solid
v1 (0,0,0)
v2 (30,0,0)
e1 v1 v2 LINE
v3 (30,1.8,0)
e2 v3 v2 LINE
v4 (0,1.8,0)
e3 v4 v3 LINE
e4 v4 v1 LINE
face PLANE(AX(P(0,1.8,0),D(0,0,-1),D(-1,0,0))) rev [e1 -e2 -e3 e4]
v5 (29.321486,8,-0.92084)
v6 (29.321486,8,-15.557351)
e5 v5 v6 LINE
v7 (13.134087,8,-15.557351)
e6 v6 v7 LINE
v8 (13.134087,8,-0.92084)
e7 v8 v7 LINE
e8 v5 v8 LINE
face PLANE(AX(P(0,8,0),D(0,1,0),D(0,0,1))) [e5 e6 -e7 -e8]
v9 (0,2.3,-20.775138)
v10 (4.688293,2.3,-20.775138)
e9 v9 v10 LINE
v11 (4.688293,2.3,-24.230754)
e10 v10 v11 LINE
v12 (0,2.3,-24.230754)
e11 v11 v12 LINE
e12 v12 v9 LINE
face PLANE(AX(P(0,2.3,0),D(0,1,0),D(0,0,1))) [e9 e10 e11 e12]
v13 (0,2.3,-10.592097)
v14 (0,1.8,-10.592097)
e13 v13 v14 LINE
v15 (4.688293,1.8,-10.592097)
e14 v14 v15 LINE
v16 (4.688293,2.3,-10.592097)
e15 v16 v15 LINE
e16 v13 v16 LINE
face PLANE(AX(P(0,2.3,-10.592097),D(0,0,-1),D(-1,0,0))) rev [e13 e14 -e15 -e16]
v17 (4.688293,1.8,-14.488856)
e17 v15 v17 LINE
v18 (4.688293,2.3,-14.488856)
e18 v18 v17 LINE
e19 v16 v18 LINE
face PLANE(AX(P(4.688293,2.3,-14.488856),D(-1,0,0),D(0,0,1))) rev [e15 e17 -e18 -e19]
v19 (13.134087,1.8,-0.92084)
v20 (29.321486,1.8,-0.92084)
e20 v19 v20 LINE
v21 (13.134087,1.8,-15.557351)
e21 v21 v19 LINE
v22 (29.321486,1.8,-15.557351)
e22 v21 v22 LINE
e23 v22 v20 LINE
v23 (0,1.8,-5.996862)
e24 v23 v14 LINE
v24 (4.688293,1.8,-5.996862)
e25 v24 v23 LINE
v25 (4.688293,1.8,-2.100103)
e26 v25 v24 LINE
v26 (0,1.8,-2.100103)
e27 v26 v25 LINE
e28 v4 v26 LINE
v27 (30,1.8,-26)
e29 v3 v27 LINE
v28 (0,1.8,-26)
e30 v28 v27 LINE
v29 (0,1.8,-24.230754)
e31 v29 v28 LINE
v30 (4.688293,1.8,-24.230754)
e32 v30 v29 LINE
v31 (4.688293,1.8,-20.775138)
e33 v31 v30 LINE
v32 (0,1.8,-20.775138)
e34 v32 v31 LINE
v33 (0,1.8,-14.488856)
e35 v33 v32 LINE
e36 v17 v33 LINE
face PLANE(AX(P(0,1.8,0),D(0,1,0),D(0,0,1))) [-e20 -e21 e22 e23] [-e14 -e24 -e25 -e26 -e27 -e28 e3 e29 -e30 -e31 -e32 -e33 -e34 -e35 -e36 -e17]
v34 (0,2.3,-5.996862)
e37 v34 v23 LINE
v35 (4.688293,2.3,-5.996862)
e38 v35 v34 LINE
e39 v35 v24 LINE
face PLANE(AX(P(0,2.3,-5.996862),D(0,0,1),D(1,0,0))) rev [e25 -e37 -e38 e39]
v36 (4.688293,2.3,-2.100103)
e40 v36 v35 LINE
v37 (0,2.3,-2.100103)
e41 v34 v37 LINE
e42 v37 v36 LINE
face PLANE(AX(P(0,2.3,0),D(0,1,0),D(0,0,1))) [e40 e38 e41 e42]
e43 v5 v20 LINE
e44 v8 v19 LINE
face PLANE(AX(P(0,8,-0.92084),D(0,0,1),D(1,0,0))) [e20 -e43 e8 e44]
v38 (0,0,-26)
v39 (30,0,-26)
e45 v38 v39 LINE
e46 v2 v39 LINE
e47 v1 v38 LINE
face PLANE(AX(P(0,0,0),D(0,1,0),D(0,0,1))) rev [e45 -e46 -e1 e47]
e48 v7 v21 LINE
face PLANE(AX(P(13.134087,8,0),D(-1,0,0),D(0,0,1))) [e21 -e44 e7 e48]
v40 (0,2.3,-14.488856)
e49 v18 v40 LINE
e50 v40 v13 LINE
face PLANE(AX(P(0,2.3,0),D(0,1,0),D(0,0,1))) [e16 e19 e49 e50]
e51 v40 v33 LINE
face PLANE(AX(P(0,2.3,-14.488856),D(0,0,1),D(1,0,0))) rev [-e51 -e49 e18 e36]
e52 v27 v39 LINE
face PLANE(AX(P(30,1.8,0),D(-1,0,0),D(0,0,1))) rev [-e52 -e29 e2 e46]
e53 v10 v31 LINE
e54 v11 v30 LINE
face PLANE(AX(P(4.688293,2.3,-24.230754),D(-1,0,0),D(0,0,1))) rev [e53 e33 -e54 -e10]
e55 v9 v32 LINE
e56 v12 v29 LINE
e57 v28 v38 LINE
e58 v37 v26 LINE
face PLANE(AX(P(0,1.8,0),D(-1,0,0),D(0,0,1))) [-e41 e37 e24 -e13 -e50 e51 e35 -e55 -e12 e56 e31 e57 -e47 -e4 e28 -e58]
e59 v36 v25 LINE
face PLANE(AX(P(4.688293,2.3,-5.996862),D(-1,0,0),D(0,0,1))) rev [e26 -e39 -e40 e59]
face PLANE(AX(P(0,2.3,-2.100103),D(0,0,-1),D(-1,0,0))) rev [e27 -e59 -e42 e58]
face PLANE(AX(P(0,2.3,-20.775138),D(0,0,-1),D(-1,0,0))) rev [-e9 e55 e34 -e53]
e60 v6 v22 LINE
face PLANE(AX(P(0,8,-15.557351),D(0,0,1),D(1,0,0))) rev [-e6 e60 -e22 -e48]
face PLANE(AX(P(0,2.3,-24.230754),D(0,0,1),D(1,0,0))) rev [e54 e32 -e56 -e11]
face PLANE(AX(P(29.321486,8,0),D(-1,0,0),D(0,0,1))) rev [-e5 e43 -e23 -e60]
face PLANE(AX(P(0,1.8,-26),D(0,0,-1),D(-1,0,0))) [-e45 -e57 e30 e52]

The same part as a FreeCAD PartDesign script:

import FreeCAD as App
import Part
import Sketcher
Q = App.Units.Quantity

doc = App.newDocument("Part")
body = doc.addObject("PartDesign::Body", "Body")

# Sketch on XZ plane
sketch1 = doc.addObject("Sketcher::SketchObject", "Sketch")
body.addObject(sketch1)
sketch1.AttachmentSupport = (doc.XZ_Plane, [""])
sketch1.MapMode = "FlatFace"
sketch1.addGeometry(Part.LineSegment(App.Vector(0, -26, 0), App.Vector(0, 0, 0)), False)
sketch1.addGeometry(Part.LineSegment(App.Vector(0, 0, 0), App.Vector(30, 0, 0)), False)
sketch1.addGeometry(Part.LineSegment(App.Vector(30, 0, 0), App.Vector(30, -26, 0)), False)
sketch1.addGeometry(Part.LineSegment(App.Vector(30, -26, 0), App.Vector(0, -26, 0)), False)
sketch1.addConstraint(Sketcher.Constraint("Coincident", 0, 2, 1, 1))
sketch1.addConstraint(Sketcher.Constraint("Coincident", 1, 2, 2, 1))
sketch1.addConstraint(Sketcher.Constraint("Coincident", 2, 2, 3, 1))
sketch1.addConstraint(Sketcher.Constraint("Coincident", 3, 2, 0, 1))
sketch1.addConstraint(Sketcher.Constraint("Vertical", 0))
sketch1.addConstraint(Sketcher.Constraint("Horizontal", 1))
sketch1.addConstraint(Sketcher.Constraint("Vertical", 2))
sketch1.addConstraint(Sketcher.Constraint("Horizontal", 3))
sketch1.addConstraint(Sketcher.Constraint("Coincident", 0, 2, -1, 1))
sketch1.addConstraint(Sketcher.Constraint("DistanceX", 1, 1, 1, 2, Q("30 mm")))
sketch1.addConstraint(Sketcher.Constraint("DistanceY", 0, 1, 0, 2, Q("26 mm")))
pad1 = doc.addObject("PartDesign::Pad", "Pad")
body.addObject(pad1)
pad1.Profile = sketch1
pad1.Length = 1.8
pad1.Reversed = True

# Sketch on XZ plane
sketch2 = doc.addObject("Sketcher::SketchObject", "Sketch001")
body.addObject(sketch2)
sketch2.AttachmentSupport = (doc.XZ_Plane, [""])
sketch2.MapMode = "FlatFace"
sketch2.addGeometry(Part.LineSegment(App.Vector(13, -16, 0), App.Vector(13, -1, 0)), False)
sketch2.addGeometry(Part.LineSegment(App.Vector(13, -1, 0), App.Vector(29, -1, 0)), False)
sketch2.addGeometry(Part.LineSegment(App.Vector(29, -1, 0), App.Vector(29, -16, 0)), False)
sketch2.addGeometry(Part.LineSegment(App.Vector(29, -16, 0), App.Vector(13, -16, 0)), False)
sketch2.addConstraint(Sketcher.Constraint("Coincident", 0, 2, 1, 1))
sketch2.addConstraint(Sketcher.Constraint("Coincident", 1, 2, 2, 1))
sketch2.addConstraint(Sketcher.Constraint("Coincident", 2, 2, 3, 1))
sketch2.addConstraint(Sketcher.Constraint("Coincident", 3, 2, 0, 1))
sketch2.addConstraint(Sketcher.Constraint("Vertical", 0))
sketch2.addConstraint(Sketcher.Constraint("Horizontal", 1))
sketch2.addConstraint(Sketcher.Constraint("Vertical", 2))
sketch2.addConstraint(Sketcher.Constraint("Horizontal", 3))
sketch2.addConstraint(Sketcher.Constraint("DistanceX", 1, 1, 1, 2, Q("16.187399 mm")))
sketch2.addConstraint(Sketcher.Constraint("DistanceY", 0, 1, 0, 2, Q("14.63651 mm")))
sketch2.addConstraint(Sketcher.Constraint("DistanceY", 0, 2, -1, 1, Q("0.92084 mm")))
sketch2.addConstraint(Sketcher.Constraint("DistanceX", -1, 1, 0, 2, Q("13.134087 mm")))
pad2 = doc.addObject("PartDesign::Pad", "Pad001")
body.addObject(pad2)
pad2.Profile = sketch2
pad2.Length = 8
pad2.Reversed = True

# Sketch on XZ plane
sketch3 = doc.addObject("Sketcher::SketchObject", "Sketch002")
body.addObject(sketch3)
sketch3.AttachmentSupport = (doc.XZ_Plane, [""])
sketch3.MapMode = "FlatFace"
sketch3.AttachmentOffset = App.Placement(App.Vector(0, 0, -1.8), App.Rotation())
sketch3.addGeometry(Part.LineSegment(App.Vector(0, -24.2, 0), App.Vector(0, -20.8, 0)), False)
sketch3.addGeometry(Part.LineSegment(App.Vector(0, -20.8, 0), App.Vector(4.7, -20.8, 0)), False)
sketch3.addGeometry(Part.LineSegment(App.Vector(4.7, -20.8, 0), App.Vector(4.7, -24.2, 0)), False)
sketch3.addGeometry(Part.LineSegment(App.Vector(4.7, -24.2, 0), App.Vector(0, -24.2, 0)), False)
sketch3.addGeometry(Part.LineSegment(App.Vector(0, -14.5, 0), App.Vector(0, -10.6, 0)), False)
sketch3.addGeometry(Part.LineSegment(App.Vector(0, -10.6, 0), App.Vector(4.7, -10.6, 0)), False)
sketch3.addGeometry(Part.LineSegment(App.Vector(4.7, -10.6, 0), App.Vector(4.7, -14.5, 0)), False)
sketch3.addGeometry(Part.LineSegment(App.Vector(4.7, -14.5, 0), App.Vector(0, -14.5, 0)), False)
sketch3.addGeometry(Part.LineSegment(App.Vector(0, -6, 0), App.Vector(0, -2.1, 0)), False)
sketch3.addGeometry(Part.LineSegment(App.Vector(0, -2.1, 0), App.Vector(4.7, -2.1, 0)), False)
sketch3.addGeometry(Part.LineSegment(App.Vector(4.7, -2.1, 0), App.Vector(4.7, -6, 0)), False)
sketch3.addGeometry(Part.LineSegment(App.Vector(4.7, -6, 0), App.Vector(0, -6, 0)), False)
sketch3.addConstraint(Sketcher.Constraint("Coincident", 0, 2, 1, 1))
sketch3.addConstraint(Sketcher.Constraint("Coincident", 1, 2, 2, 1))
sketch3.addConstraint(Sketcher.Constraint("Coincident", 2, 2, 3, 1))
sketch3.addConstraint(Sketcher.Constraint("Coincident", 3, 2, 0, 1))
sketch3.addConstraint(Sketcher.Constraint("Coincident", 4, 2, 5, 1))
sketch3.addConstraint(Sketcher.Constraint("Coincident", 5, 2, 6, 1))
sketch3.addConstraint(Sketcher.Constraint("Coincident", 6, 2, 7, 1))
sketch3.addConstraint(Sketcher.Constraint("Coincident", 7, 2, 4, 1))
sketch3.addConstraint(Sketcher.Constraint("Coincident", 8, 2, 9, 1))
sketch3.addConstraint(Sketcher.Constraint("Coincident", 9, 2, 10, 1))
sketch3.addConstraint(Sketcher.Constraint("Coincident", 10, 2, 11, 1))
sketch3.addConstraint(Sketcher.Constraint("Coincident", 11, 2, 8, 1))
sketch3.addConstraint(Sketcher.Constraint("Vertical", 0))
sketch3.addConstraint(Sketcher.Constraint("Horizontal", 1))
sketch3.addConstraint(Sketcher.Constraint("Vertical", 2))
sketch3.addConstraint(Sketcher.Constraint("Horizontal", 3))
sketch3.addConstraint(Sketcher.Constraint("Vertical", 4))
sketch3.addConstraint(Sketcher.Constraint("Horizontal", 5))
sketch3.addConstraint(Sketcher.Constraint("Vertical", 6))
sketch3.addConstraint(Sketcher.Constraint("Horizontal", 7))
sketch3.addConstraint(Sketcher.Constraint("Vertical", 8))
sketch3.addConstraint(Sketcher.Constraint("Horizontal", 9))
sketch3.addConstraint(Sketcher.Constraint("Vertical", 10))
sketch3.addConstraint(Sketcher.Constraint("Horizontal", 11))
sketch3.addConstraint(Sketcher.Constraint("PointOnObject", 0, 2, -2))
sketch3.addConstraint(Sketcher.Constraint("PointOnObject", 4, 2, -2))
sketch3.addConstraint(Sketcher.Constraint("PointOnObject", 8, 2, -2))
sketch3.addConstraint(Sketcher.Constraint("Vertical", 2, 2, 5, 2))
sketch3.addConstraint(Sketcher.Constraint("Vertical", 6, 2, 9, 2))
sketch3.addConstraint(Sketcher.Constraint("Equal", 6, 8))
sketch3.addConstraint(Sketcher.Constraint("DistanceY", 4, 1, 4, 2, Q("3.896759 mm")))
sketch3.addConstraint(Sketcher.Constraint("DistanceY", 2, 2, 6, 2, Q("9.741898 mm")))
sketch3.addConstraint(Sketcher.Constraint("DistanceX", 1, 1, 1, 2, Q("4.688293 mm")))
sketch3.addConstraint(Sketcher.Constraint("DistanceY", 0, 1, 0, 2, Q("3.455617 mm")))
sketch3.addConstraint(Sketcher.Constraint("DistanceY", 10, 2, -1, 1, Q("5.996862 mm")))
sketch3.addConstraint(Sketcher.Constraint("DistanceY", 0, 2, -1, 1, Q("20.775138 mm")))
pad3 = doc.addObject("PartDesign::Pad", "Pad002")
body.addObject(pad3)
pad3.Profile = sketch3
pad3.Length = 0.5
pad3.Reversed = True

doc.recompute()
